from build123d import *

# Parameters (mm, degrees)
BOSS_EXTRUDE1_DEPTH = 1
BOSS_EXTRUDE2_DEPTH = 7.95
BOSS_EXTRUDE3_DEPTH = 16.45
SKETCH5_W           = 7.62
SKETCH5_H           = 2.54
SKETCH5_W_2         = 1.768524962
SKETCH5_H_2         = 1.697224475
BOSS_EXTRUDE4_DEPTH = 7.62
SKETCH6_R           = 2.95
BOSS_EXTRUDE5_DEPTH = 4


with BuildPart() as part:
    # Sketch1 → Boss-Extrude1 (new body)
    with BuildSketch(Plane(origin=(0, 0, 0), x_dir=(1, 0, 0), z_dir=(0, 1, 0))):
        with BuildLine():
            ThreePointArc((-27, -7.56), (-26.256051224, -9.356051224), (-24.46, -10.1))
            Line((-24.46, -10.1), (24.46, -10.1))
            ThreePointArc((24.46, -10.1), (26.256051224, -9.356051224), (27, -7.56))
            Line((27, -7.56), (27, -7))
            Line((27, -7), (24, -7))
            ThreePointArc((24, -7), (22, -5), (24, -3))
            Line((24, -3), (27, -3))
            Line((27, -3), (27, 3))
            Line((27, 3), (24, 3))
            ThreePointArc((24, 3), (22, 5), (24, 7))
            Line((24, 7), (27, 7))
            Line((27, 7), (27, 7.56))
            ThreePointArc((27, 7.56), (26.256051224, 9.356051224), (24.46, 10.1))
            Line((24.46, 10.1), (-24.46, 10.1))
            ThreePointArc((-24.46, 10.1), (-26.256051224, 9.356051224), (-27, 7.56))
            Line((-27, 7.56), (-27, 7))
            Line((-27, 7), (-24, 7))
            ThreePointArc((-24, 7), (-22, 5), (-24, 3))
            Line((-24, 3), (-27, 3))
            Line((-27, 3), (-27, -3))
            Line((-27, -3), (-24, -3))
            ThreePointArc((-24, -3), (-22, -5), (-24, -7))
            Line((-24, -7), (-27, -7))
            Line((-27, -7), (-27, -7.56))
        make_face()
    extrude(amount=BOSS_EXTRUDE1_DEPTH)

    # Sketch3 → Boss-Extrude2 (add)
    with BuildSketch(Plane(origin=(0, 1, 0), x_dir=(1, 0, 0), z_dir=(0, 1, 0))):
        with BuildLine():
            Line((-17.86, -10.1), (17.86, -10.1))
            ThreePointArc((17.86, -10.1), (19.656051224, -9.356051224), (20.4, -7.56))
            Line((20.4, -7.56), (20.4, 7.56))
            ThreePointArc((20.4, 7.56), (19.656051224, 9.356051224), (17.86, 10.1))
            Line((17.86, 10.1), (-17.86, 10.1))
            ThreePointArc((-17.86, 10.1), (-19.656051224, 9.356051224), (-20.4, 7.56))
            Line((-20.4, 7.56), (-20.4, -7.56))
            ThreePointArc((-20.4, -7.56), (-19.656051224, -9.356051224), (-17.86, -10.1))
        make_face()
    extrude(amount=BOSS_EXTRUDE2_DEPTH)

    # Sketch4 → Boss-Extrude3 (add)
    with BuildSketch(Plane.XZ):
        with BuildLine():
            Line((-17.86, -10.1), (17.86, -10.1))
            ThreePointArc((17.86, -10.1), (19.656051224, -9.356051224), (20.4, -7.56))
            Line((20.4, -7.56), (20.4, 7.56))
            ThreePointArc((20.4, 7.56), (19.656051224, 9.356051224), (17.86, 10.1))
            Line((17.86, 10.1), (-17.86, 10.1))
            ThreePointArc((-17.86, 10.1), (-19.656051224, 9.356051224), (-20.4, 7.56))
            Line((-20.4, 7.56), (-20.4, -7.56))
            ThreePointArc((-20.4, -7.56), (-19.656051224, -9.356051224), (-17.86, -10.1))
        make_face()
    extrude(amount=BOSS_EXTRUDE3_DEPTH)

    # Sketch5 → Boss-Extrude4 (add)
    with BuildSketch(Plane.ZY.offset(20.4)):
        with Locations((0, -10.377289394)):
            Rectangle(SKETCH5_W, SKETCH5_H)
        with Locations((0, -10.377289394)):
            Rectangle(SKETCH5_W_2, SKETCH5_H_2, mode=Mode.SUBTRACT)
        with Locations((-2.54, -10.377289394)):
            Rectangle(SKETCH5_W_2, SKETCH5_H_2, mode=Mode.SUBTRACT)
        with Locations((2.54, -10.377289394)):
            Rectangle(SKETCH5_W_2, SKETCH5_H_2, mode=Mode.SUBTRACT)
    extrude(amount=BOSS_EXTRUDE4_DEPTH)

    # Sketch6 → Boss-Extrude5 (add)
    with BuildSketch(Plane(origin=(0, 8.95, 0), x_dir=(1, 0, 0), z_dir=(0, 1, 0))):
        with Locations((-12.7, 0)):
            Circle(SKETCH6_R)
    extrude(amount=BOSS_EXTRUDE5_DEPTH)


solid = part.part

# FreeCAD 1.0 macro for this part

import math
import FreeCAD as App
import Part
import Sketcher
Q = App.Units.Quantity


def add_polygon(sketch, points):
    """Adds a closed chain of lines whose ends are joined by coincident constraints."""
    first, n = sketch.GeometryCount, len(points)
    for a, b in zip(points, points[1:] + points[:1]):
        sketch.addGeometry(Part.LineSegment(App.Vector(*a, 0), App.Vector(*b, 0)), False)
    for i in range(n):
        sketch.addConstraint(Sketcher.Constraint("Coincident", first + i, 2, first + (i + 1) % n, 1))

doc = App.newDocument("Part")
body = doc.addObject("PartDesign::Body", "Body")

sketch1 = doc.addObject("Sketcher::SketchObject", "Sketch")
body.addObject(sketch1)
sketch1.AttachmentSupport = (doc.XZ_Plane, [""])
sketch1.MapMode = "FlatFace"
sketch1.addGeometry([
    Part.ArcOfCircle(Part.Circle(App.Vector(-24.46, 7.56, 0), App.Vector(0, 0, 1), 2.54), math.radians(90), math.radians(180)),
    Part.LineSegment(App.Vector(-24.46, 10.1, 0), App.Vector(24.46, 10.1, 0)),
    Part.ArcOfCircle(Part.Circle(App.Vector(24.46, 7.56, 0), App.Vector(0, 0, 1), 2.54), math.radians(0), math.radians(90)),
    Part.LineSegment(App.Vector(27, 7.56, 0), App.Vector(27, 7, 0)),
    Part.LineSegment(App.Vector(27, 7, 0), App.Vector(24, 7, 0)),
    Part.ArcOfCircle(Part.Circle(App.Vector(24, 5, 0), App.Vector(0, 0, 1), 2), math.radians(90), math.radians(270)),
    Part.LineSegment(App.Vector(24, 3, 0), App.Vector(27, 3, 0)),
    Part.LineSegment(App.Vector(27, 3, 0), App.Vector(27, -3, 0)),
    Part.LineSegment(App.Vector(27, -3, 0), App.Vector(24, -3, 0)),
    Part.ArcOfCircle(Part.Circle(App.Vector(24, -5, 0), App.Vector(0, 0, 1), 2), math.radians(90), math.radians(270)),
    Part.LineSegment(App.Vector(24, -7, 0), App.Vector(27, -7, 0)),
    Part.LineSegment(App.Vector(27, -7, 0), App.Vector(27, -7.56, 0)),
    Part.ArcOfCircle(Part.Circle(App.Vector(24.46, -7.56, 0), App.Vector(0, 0, 1), 2.54), math.radians(-90), math.radians(0)),
    Part.LineSegment(App.Vector(24.46, -10.1, 0), App.Vector(-24.46, -10.1, 0)),
    Part.ArcOfCircle(Part.Circle(App.Vector(-24.46, -7.56, 0), App.Vector(0, 0, 1), 2.54), math.radians(-180), math.radians(-90)),
    Part.LineSegment(App.Vector(-27, -7.56, 0), App.Vector(-27, -7, 0)),
    Part.LineSegment(App.Vector(-27, -7, 0), App.Vector(-24, -7, 0)),
    Part.ArcOfCircle(Part.Circle(App.Vector(-24, -5, 0), App.Vector(0, 0, 1), 2), math.radians(-90), math.radians(90)),
    Part.LineSegment(App.Vector(-24, -3, 0), App.Vector(-27, -3, 0)),
    Part.LineSegment(App.Vector(-27, -3, 0), App.Vector(-27, 3, 0)),
    Part.LineSegment(App.Vector(-27, 3, 0), App.Vector(-24, 3, 0)),
    Part.ArcOfCircle(Part.Circle(App.Vector(-24, 5, 0), App.Vector(0, 0, 1), 2), math.radians(-90), math.radians(90)),
    Part.LineSegment(App.Vector(-24, 7, 0), App.Vector(-27, 7, 0)),
    Part.LineSegment(App.Vector(-27, 7, 0), App.Vector(-27, 7.56, 0)),
], False)
sketch1.addConstraint([
    Sketcher.Constraint("Tangent", 0, 1, 1, 1),
    Sketcher.Constraint("Tangent", 1, 2, 2, 2),
    Sketcher.Constraint("Tangent", 2, 1, 3, 1),
    Sketcher.Constraint("Coincident", 3, 2, 4, 1),
    Sketcher.Constraint("Tangent", 4, 2, 5, 1),
    Sketcher.Constraint("Tangent", 5, 2, 6, 1),
    Sketcher.Constraint("Coincident", 6, 2, 7, 1),
    Sketcher.Constraint("Coincident", 7, 2, 8, 1),
    Sketcher.Constraint("Tangent", 8, 2, 9, 1),
    Sketcher.Constraint("Tangent", 9, 2, 10, 1),
    Sketcher.Constraint("Coincident", 10, 2, 11, 1),
    Sketcher.Constraint("Tangent", 11, 2, 12, 2),
    Sketcher.Constraint("Tangent", 12, 1, 13, 1),
    Sketcher.Constraint("Tangent", 13, 2, 14, 2),
    Sketcher.Constraint("Tangent", 14, 1, 15, 1),
    Sketcher.Constraint("Coincident", 15, 2, 16, 1),
    Sketcher.Constraint("Tangent", 16, 2, 17, 1),
    Sketcher.Constraint("Tangent", 17, 2, 18, 1),
    Sketcher.Constraint("Coincident", 18, 2, 19, 1),
    Sketcher.Constraint("Coincident", 19, 2, 20, 1),
    Sketcher.Constraint("Tangent", 20, 2, 21, 1),
    Sketcher.Constraint("Tangent", 21, 2, 22, 1),
    Sketcher.Constraint("Coincident", 22, 2, 23, 1),
    Sketcher.Constraint("Tangent", 23, 2, 0, 2),
    Sketcher.Constraint("Horizontal", 1),
    Sketcher.Constraint("Vertical", 3),
    Sketcher.Constraint("Horizontal", 4),
    Sketcher.Constraint("Horizontal", 6),
    Sketcher.Constraint("Vertical", 7),
    Sketcher.Constraint("Horizontal", 8),
    Sketcher.Constraint("Horizontal", 10),
    Sketcher.Constraint("Vertical", 11),
    Sketcher.Constraint("Horizontal", 13),
    Sketcher.Constraint("Vertical", 15),
    Sketcher.Constraint("Horizontal", 16),
    Sketcher.Constraint("Horizontal", 18),
    Sketcher.Constraint("Vertical", 19),
    Sketcher.Constraint("Horizontal", 20),
    Sketcher.Constraint("Horizontal", 22),
    Sketcher.Constraint("Vertical", 23),
    Sketcher.Constraint("Equal", 0, 2),
    Sketcher.Constraint("Equal", 5, 9),
    Sketcher.Constraint("Equal", 2, 12),
    Sketcher.Constraint("Equal", 12, 14),
    Sketcher.Constraint("Equal", 9, 17),
    Sketcher.Constraint("Equal", 17, 21),
    Sketcher.Constraint("Symmetric", 0, 3, 12, 3, -1, 1),
    Sketcher.Constraint("Symmetric", 5, 3, 17, 3, -1, 1),
    Sketcher.Constraint("Symmetric", 9, 3, 21, 3, -1, 1),
    Sketcher.Constraint("Symmetric", 9, 3, 17, 3, -2),
    Sketcher.Constraint("Vertical", 2, 3, 12, 3),
    Sketcher.Constraint("Vertical", 0, 3, 14, 3),
    Sketcher.Constraint("Vertical", 3, 2, 6, 2),
    Sketcher.Constraint("Vertical", 15, 2, 18, 2),
    Sketcher.Constraint("Radius", 5, Q("2 mm")),
    Sketcher.Constraint("DistanceX", 4, 2, 4, 1, Q("3 mm")),
    Sketcher.Constraint("DistanceY", 7, 2, 7, 1, Q("6 mm")),
    Sketcher.Constraint("Radius", 0, Q("2.54 mm")),
    Sketcher.Constraint("DistanceX", -1, 1, 5, 3, Q("24 mm")),
    Sketcher.Constraint("DistanceY", 3, 2, 3, 1, Q("0.56 mm")),
])
pad1 = doc.addObject("PartDesign::Pad", "Pad")
body.addObject(pad1)
pad1.Profile = sketch1
pad1.Length = 1
pad1.Reversed = True

sketch2 = doc.addObject("Sketcher::SketchObject", "Sketch001")
body.addObject(sketch2)
sketch2.AttachmentSupport = (doc.XZ_Plane, [""])
sketch2.MapMode = "FlatFace"
sketch2.AttachmentOffset = App.Placement(App.Vector(0, 0, -1), App.Rotation())
sketch2.addGeometry([
    Part.LineSegment(App.Vector(-17.86, 10.1, 0), App.Vector(17.86, 10.1, 0)),
    Part.ArcOfCircle(Part.Circle(App.Vector(17.86, 7.56, 0), App.Vector(0, 0, 1), 2.54), math.radians(0), math.radians(90)),
    Part.LineSegment(App.Vector(20.4, 7.56, 0), App.Vector(20.4, -7.56, 0)),
    Part.ArcOfCircle(Part.Circle(App.Vector(17.86, -7.56, 0), App.Vector(0, 0, 1), 2.54), math.radians(-90), math.radians(0)),
    Part.LineSegment(App.Vector(17.86, -10.1, 0), App.Vector(-17.86, -10.1, 0)),
    Part.ArcOfCircle(Part.Circle(App.Vector(-17.86, -7.56, 0), App.Vector(0, 0, 1), 2.54), math.radians(-180), math.radians(-90)),
    Part.LineSegment(App.Vector(-20.4, -7.56, 0), App.Vector(-20.4, 7.56, 0)),
    Part.ArcOfCircle(Part.Circle(App.Vector(-17.86, 7.56, 0), App.Vector(0, 0, 1), 2.54), math.radians(90), math.radians(180)),
], False)
sketch2.addConstraint([
    Sketcher.Constraint("Tangent", 0, 2, 1, 2),
    Sketcher.Constraint("Tangent", 1, 1, 2, 1),
    Sketcher.Constraint("Tangent", 2, 2, 3, 2),
    Sketcher.Constraint("Tangent", 3, 1, 4, 1),
    Sketcher.Constraint("Tangent", 4, 2, 5, 2),
    Sketcher.Constraint("Tangent", 5, 1, 6, 1),
    Sketcher.Constraint("Tangent", 6, 2, 7, 2),
    Sketcher.Constraint("Tangent", 7, 1, 0, 1),
    Sketcher.Constraint("Horizontal", 0),
    Sketcher.Constraint("Vertical", 2),
    Sketcher.Constraint("Horizontal", 4),
    Sketcher.Constraint("Vertical", 6),
    Sketcher.Constraint("Equal", 1, 3),
    Sketcher.Constraint("Equal", 3, 5),
    Sketcher.Constraint("Equal", 5, 7),
    Sketcher.Constraint("Symmetric", 1, 3, 5, 3, -1, 1),
    Sketcher.Constraint("Radius", 1, Q("2.54 mm")),
    Sketcher.Constraint("DistanceX", 0, 1, 0, 2, Q("35.72 mm")),
    Sketcher.Constraint("DistanceY", 2, 2, 2, 1, Q("15.12 mm")),
])
pad2 = doc.addObject("PartDesign::Pad", "Pad001")
body.addObject(pad2)
pad2.Profile = sketch2
pad2.Length = 7.95
pad2.Reversed = True

sketch3 = doc.addObject("Sketcher::SketchObject", "Sketch002")
body.addObject(sketch3)
sketch3.AttachmentSupport = (doc.XZ_Plane, [""])
sketch3.MapMode = "FlatFace"
sketch3.addGeometry([
    Part.LineSegment(App.Vector(-17.86, -10.1, 0), App.Vector(17.86, -10.1, 0)),
    Part.ArcOfCircle(Part.Circle(App.Vector(17.86, -7.56, 0), App.Vector(0, 0, 1), 2.54), math.radians(-90), math.radians(0)),
    Part.LineSegment(App.Vector(20.4, -7.56, 0), App.Vector(20.4, 7.56, 0)),
    Part.ArcOfCircle(Part.Circle(App.Vector(17.86, 7.56, 0), App.Vector(0, 0, 1), 2.54), math.radians(0), math.radians(90)),
    Part.LineSegment(App.Vector(17.86, 10.1, 0), App.Vector(-17.86, 10.1, 0)),
    Part.ArcOfCircle(Part.Circle(App.Vector(-17.86, 7.56, 0), App.Vector(0, 0, 1), 2.54), math.radians(90), math.radians(180)),
    Part.LineSegment(App.Vector(-20.4, 7.56, 0), App.Vector(-20.4, -7.56, 0)),
    Part.ArcOfCircle(Part.Circle(App.Vector(-17.86, -7.56, 0), App.Vector(0, 0, 1), 2.54), math.radians(-180), math.radians(-90)),
], False)
sketch3.addConstraint([
    Sketcher.Constraint("Tangent", 0, 2, 1, 1),
    Sketcher.Constraint("Tangent", 1, 2, 2, 1),
    Sketcher.Constraint("Tangent", 2, 2, 3, 1),
    Sketcher.Constraint("Tangent", 3, 2, 4, 1),
    Sketcher.Constraint("Tangent", 4, 2, 5, 1),
    Sketcher.Constraint("Tangent", 5, 2, 6, 1),
    Sketcher.Constraint("Tangent", 6, 2, 7, 1),
    Sketcher.Constraint("Tangent", 7, 2, 0, 1),
    Sketcher.Constraint("Horizontal", 0),
    Sketcher.Constraint("Vertical", 2),
    Sketcher.Constraint("Horizontal", 4),
    Sketcher.Constraint("Vertical", 6),
    Sketcher.Constraint("Equal", 1, 3),
    Sketcher.Constraint("Equal", 3, 5),
    Sketcher.Constraint("Equal", 5, 7),
    Sketcher.Constraint("Symmetric", 1, 3, 5, 3, -1, 1),
    Sketcher.Constraint("Radius", 1, Q("2.54 mm")),
    Sketcher.Constraint("DistanceX", 0, 1, 0, 2, Q("35.72 mm")),
    Sketcher.Constraint("DistanceY", 2, 1, 2, 2, Q("15.12 mm")),
])
pad3 = doc.addObject("PartDesign::Pad", "Pad002")
body.addObject(pad3)
pad3.Profile = sketch3
pad3.Length = 16.45

sketch4 = doc.addObject("Sketcher::SketchObject", "Sketch003")
body.addObject(sketch4)
sketch4.AttachmentSupport = (doc.YZ_Plane, [""])
sketch4.MapMode = "FlatFace"
sketch4.AttachmentOffset = App.Placement(App.Vector(0, 0, -20.4), App.Rotation())
add_polygon(sketch4, [(-9.107289, -3.81), (-11.647289, -3.81), (-11.647289, 3.81), (-9.107289, 3.81)])
add_polygon(sketch4, [(-11.225902, -1.655738), (-11.225902, -3.424262), (-9.528677, -3.424262), (-9.528677, -1.655738)])
add_polygon(sketch4, [(-11.225902, 0.884262), (-11.225902, -0.884262), (-9.528677, -0.884262), (-9.528677, 0.884262)])
add_polygon(sketch4, [(-11.225902, 3.424262), (-11.225902, 1.655738), (-9.528677, 1.655738), (-9.528677, 3.424262)])
sketch4.addConstraint([
    Sketcher.Constraint("Horizontal", 0),
    Sketcher.Constraint("Vertical", 1),
    Sketcher.Constraint("Horizontal", 2),
    Sketcher.Constraint("Vertical", 3),
    Sketcher.Constraint("Vertical", 4),
    Sketcher.Constraint("Horizontal", 5),
    Sketcher.Constraint("Vertical", 6),
    Sketcher.Constraint("Horizontal", 7),
    Sketcher.Constraint("Vertical", 8),
    Sketcher.Constraint("Horizontal", 9),
    Sketcher.Constraint("Vertical", 10),
    Sketcher.Constraint("Horizontal", 11),
    Sketcher.Constraint("Vertical", 12),
    Sketcher.Constraint("Horizontal", 13),
    Sketcher.Constraint("Vertical", 14),
    Sketcher.Constraint("Horizontal", 15),
    Sketcher.Constraint("Symmetric", 7, 2, 12, 2, -1),
    Sketcher.Constraint("Symmetric", 5, 2, 14, 2, -1),
    Sketcher.Constraint("Vertical", 7, 2, 8, 2),
    Sketcher.Constraint("Vertical", 6, 2, 9, 2),
    Sketcher.Constraint("Equal", 6, 8),
    Sketcher.Constraint("DistanceX", 0, 2, 0, 1, Q("2.54 mm")),
    Sketcher.Constraint("DistanceY", 1, 1, 1, 2, Q("7.62 mm")),
    Sketcher.Constraint("DistanceY", 0, 2, -1, 1, Q("3.81 mm")),
    Sketcher.Constraint("DistanceY", 4, 2, 8, 2, Q("2.54 mm")),
    Sketcher.Constraint("DistanceY", 8, 2, 12, 2, Q("2.54 mm")),
    Sketcher.Constraint("DistanceX", 4, 2, -1, 1, Q("11.225902 mm")),
    Sketcher.Constraint("DistanceX", 5, 1, 5, 2, Q("1.697224 mm")),
    Sketcher.Constraint("DistanceY", 4, 2, 4, 1, Q("1.768525 mm")),
    Sketcher.Constraint("DistanceX", 0, 2, -1, 1, Q("11.647289 mm")),
])
pad4 = doc.addObject("PartDesign::Pad", "Pad003")
body.addObject(pad4)
pad4.Profile = sketch4
pad4.Length = 7.62
pad4.Reversed = True

sketch5 = doc.addObject("Sketcher::SketchObject", "Sketch004")
body.addObject(sketch5)
sketch5.AttachmentSupport = (doc.XZ_Plane, [""])
sketch5.MapMode = "FlatFace"
sketch5.AttachmentOffset = App.Placement(App.Vector(0, 0, -8.95), App.Rotation())
sketch5.addGeometry(Part.Circle(App.Vector(-12.7, 0, 0), App.Vector(0, 0, 1), 2.95), False)
sketch5.addConstraint([
    Sketcher.Constraint("PointOnObject", 0, 3, -1),
    Sketcher.Constraint("Diameter", 0, Q("5.9 mm")),
    Sketcher.Constraint("DistanceX", 0, 3, -1, 1, Q("12.7 mm")),
])
pad5 = doc.addObject("PartDesign::Pad", "Pad004")
body.addObject(pad5)
pad5.Profile = sketch5
pad5.Length = 4
pad5.Reversed = True

doc.recompute()
